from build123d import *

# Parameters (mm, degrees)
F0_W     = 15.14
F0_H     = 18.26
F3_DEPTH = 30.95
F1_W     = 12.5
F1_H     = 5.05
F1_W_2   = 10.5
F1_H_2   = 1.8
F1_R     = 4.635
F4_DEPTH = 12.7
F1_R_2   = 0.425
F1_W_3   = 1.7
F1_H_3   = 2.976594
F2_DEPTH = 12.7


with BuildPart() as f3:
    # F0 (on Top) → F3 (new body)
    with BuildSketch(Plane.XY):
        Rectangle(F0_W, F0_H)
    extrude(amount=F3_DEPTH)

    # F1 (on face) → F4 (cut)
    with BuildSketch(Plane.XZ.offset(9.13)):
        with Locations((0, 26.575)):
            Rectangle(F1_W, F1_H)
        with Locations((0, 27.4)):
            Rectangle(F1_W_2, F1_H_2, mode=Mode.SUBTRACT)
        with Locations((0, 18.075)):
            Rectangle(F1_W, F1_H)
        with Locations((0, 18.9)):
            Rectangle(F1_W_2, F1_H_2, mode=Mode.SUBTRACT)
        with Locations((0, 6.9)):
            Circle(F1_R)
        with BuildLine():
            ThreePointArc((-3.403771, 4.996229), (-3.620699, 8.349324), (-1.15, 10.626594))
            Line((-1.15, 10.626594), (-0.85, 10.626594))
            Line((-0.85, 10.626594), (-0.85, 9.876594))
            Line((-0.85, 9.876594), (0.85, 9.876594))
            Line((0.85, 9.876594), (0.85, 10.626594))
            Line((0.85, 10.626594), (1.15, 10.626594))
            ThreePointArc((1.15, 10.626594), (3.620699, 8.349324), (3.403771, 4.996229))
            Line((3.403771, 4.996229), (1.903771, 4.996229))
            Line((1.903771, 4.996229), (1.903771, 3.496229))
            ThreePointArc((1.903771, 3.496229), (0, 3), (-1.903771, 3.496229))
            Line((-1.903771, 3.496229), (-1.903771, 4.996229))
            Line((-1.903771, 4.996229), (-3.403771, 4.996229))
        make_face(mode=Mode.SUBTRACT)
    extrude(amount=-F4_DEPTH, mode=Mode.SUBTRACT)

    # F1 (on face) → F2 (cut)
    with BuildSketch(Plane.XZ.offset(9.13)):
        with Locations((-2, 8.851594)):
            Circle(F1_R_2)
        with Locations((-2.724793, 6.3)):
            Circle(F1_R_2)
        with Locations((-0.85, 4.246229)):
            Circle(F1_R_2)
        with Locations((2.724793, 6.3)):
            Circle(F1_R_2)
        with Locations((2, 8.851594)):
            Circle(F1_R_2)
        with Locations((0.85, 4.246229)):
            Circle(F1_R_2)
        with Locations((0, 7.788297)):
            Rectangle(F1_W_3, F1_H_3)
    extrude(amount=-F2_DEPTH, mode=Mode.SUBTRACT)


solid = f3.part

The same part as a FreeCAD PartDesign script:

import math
import FreeCAD as App
import Part
import Sketcher
from FreeCAD import Vector
Q = App.Units.Quantity


def add_polygon(sketch, points):
    """Adds a closed chain of lines whose ends are joined by coincident constraints."""
    first, n = sketch.GeometryCount, len(points)
    for a, b in zip(points, points[1:] + points[:1]):
        sketch.addGeometry(Part.LineSegment(App.Vector(*a, 0), App.Vector(*b, 0)), False)
    for i in range(n):
        sketch.addConstraint(Sketcher.Constraint("Coincident", first + i, 2, first + (i + 1) % n, 1))

doc = App.newDocument("Part")
body = doc.addObject("PartDesign::Body", "Body")

# Sketch on XY plane
sketch1 = doc.addObject("Sketcher::SketchObject", "Sketch")
body.addObject(sketch1)
sketch1.AttachmentSupport = (doc.XY_Plane, [""])
sketch1.MapMode = "FlatFace"
add_polygon(sketch1, [(-7.57, 9.13), (-7.57, -9.13), (7.57, -9.13), (7.57, 9.13)])  # lines 0-3
sketch1.addConstraint(Sketcher.Constraint("Vertical", 0))
sketch1.addConstraint(Sketcher.Constraint("Horizontal", 1))
sketch1.addConstraint(Sketcher.Constraint("Vertical", 2))
sketch1.addConstraint(Sketcher.Constraint("Horizontal", 3))
sketch1.addConstraint(Sketcher.Constraint("Symmetric", 0, 2, 2, 2, -1, 1))
sketch1.addConstraint(Sketcher.Constraint("DistanceX", 1, 1, 1, 2, Q("15.14 mm")))
sketch1.addConstraint(Sketcher.Constraint("DistanceY", 0, 2, 0, 1, Q("18.26 mm")))
pad1 = doc.addObject("PartDesign::Pad", "Pad")
body.addObject(pad1)
pad1.Profile = sketch1
pad1.Length = 30.95

# Sketch on XZ plane
sketch2 = doc.addObject("Sketcher::SketchObject", "Sketch001")
body.addObject(sketch2)
sketch2.AttachmentSupport = (doc.XZ_Plane, [""])
sketch2.MapMode = "FlatFace"
sketch2.AttachmentOffset = App.Placement(Vector(0, 0, 9.13), App.Rotation())
add_polygon(sketch2, [(-6.25, 29.1), (-6.25, 24.05), (6.25, 24.05), (6.25, 29.1)])  # lines 0-3
add_polygon(sketch2, [(5.25, 26.5), (-5.25, 26.5), (-5.25, 28.3), (5.25, 28.3)])  # lines 4-7
add_polygon(sketch2, [(-6.25, 20.6), (-6.25, 15.55), (6.25, 15.55), (6.25, 20.6)])  # lines 8-11
add_polygon(sketch2, [(5.25, 18), (-5.25, 18), (-5.25, 19.8), (5.25, 19.8)])  # lines 12-15
sketch2.addGeometry(Part.Circle(Vector(0, 6.9, 0), Vector(0, 0, 1), 4.635), False)  # 16
sketch2.addGeometry(Part.LineSegment(Vector(-1.903771, 4.996229, 0), Vector(-3.403771, 4.996229, 0)), False)  # 17
sketch2.addGeometry(Part.ArcOfCircle(Part.Circle(Vector(0, 6.9, 0), Vector(0, 0, 1), 3.9), math.radians(107.149852), math.radians(209.218821)), False)  # 18
sketch2.addGeometry(Part.LineSegment(Vector(-1.15, 10.626594, 0), Vector(-0.85, 10.626594, 0)), False)  # 19
sketch2.addGeometry(Part.LineSegment(Vector(-0.85, 10.626594, 0), Vector(-0.85, 9.876594, 0)), False)  # 20
sketch2.addGeometry(Part.LineSegment(Vector(-0.85, 9.876594, 0), Vector(0.85, 9.876594, 0)), False)  # 21
sketch2.addGeometry(Part.LineSegment(Vector(0.85, 9.876594, 0), Vector(0.85, 10.626594, 0)), False)  # 22
sketch2.addGeometry(Part.LineSegment(Vector(0.85, 10.626594, 0), Vector(1.15, 10.626594, 0)), False)  # 23
sketch2.addGeometry(Part.ArcOfCircle(Part.Circle(Vector(0, 6.9, 0), Vector(0, 0, 1), 3.9), math.radians(-29.218821), math.radians(72.850148)), False)  # 24
sketch2.addGeometry(Part.LineSegment(Vector(3.403771, 4.996229, 0), Vector(1.903771, 4.996229, 0)), False)  # 25
sketch2.addGeometry(Part.LineSegment(Vector(1.903771, 4.996229, 0), Vector(1.903771, 3.496229, 0)), False)  # 26
sketch2.addGeometry(Part.ArcOfCircle(Part.Circle(Vector(0, 6.900001, 0), Vector(0, 0, 1), 3.900001), math.radians(-119.218815), math.radians(-60.781185)), False)  # 27
sketch2.addGeometry(Part.LineSegment(Vector(-1.903771, 3.496229, 0), Vector(-1.903771, 4.996229, 0)), False)  # 28
sketch2.addConstraint(Sketcher.Constraint("Coincident", 17, 2, 18, 2))
sketch2.addConstraint(Sketcher.Constraint("Coincident", 18, 1, 19, 1))
sketch2.addConstraint(Sketcher.Constraint("Coincident", 19, 2, 20, 1))
sketch2.addConstraint(Sketcher.Constraint("Coincident", 20, 2, 21, 1))
sketch2.addConstraint(Sketcher.Constraint("Coincident", 21, 2, 22, 1))
sketch2.addConstraint(Sketcher.Constraint("Coincident", 22, 2, 23, 1))
sketch2.addConstraint(Sketcher.Constraint("Coincident", 23, 2, 24, 2))
sketch2.addConstraint(Sketcher.Constraint("Coincident", 24, 1, 25, 1))
sketch2.addConstraint(Sketcher.Constraint("Coincident", 25, 2, 26, 1))
sketch2.addConstraint(Sketcher.Constraint("Coincident", 26, 2, 27, 2))
sketch2.addConstraint(Sketcher.Constraint("Coincident", 27, 1, 28, 1))
sketch2.addConstraint(Sketcher.Constraint("Coincident", 28, 2, 17, 1))
sketch2.addConstraint(Sketcher.Constraint("Vertical", 0))
sketch2.addConstraint(Sketcher.Constraint("Horizontal", 1))
sketch2.addConstraint(Sketcher.Constraint("Vertical", 2))
sketch2.addConstraint(Sketcher.Constraint("Horizontal", 3))
sketch2.addConstraint(Sketcher.Constraint("Horizontal", 4))
sketch2.addConstraint(Sketcher.Constraint("Vertical", 5))
sketch2.addConstraint(Sketcher.Constraint("Horizontal", 6))
sketch2.addConstraint(Sketcher.Constraint("Vertical", 7))
sketch2.addConstraint(Sketcher.Constraint("Vertical", 8))
sketch2.addConstraint(Sketcher.Constraint("Horizontal", 9))
sketch2.addConstraint(Sketcher.Constraint("Vertical", 10))
sketch2.addConstraint(Sketcher.Constraint("Horizontal", 11))
sketch2.addConstraint(Sketcher.Constraint("Horizontal", 12))
sketch2.addConstraint(Sketcher.Constraint("Vertical", 13))
sketch2.addConstraint(Sketcher.Constraint("Horizontal", 14))
sketch2.addConstraint(Sketcher.Constraint("Vertical", 15))
sketch2.addConstraint(Sketcher.Constraint("Horizontal", 17))
sketch2.addConstraint(Sketcher.Constraint("Horizontal", 19))
sketch2.addConstraint(Sketcher.Constraint("Vertical", 20))
sketch2.addConstraint(Sketcher.Constraint("Horizontal", 21))
sketch2.addConstraint(Sketcher.Constraint("Vertical", 22))
sketch2.addConstraint(Sketcher.Constraint("Horizontal", 23))
sketch2.addConstraint(Sketcher.Constraint("Horizontal", 25))
sketch2.addConstraint(Sketcher.Constraint("Vertical", 26))
sketch2.addConstraint(Sketcher.Constraint("Vertical", 28))
sketch2.addConstraint(Sketcher.Constraint("Coincident", 18, 3, 16, 3))
sketch2.addConstraint(Sketcher.Constraint("Coincident", 24, 3, 16, 3))
sketch2.addConstraint(Sketcher.Constraint("Coincident", 27, 3, 16, 3))
sketch2.addConstraint(Sketcher.Constraint("Equal", 18, 24))
sketch2.addConstraint(Sketcher.Constraint("Equal", 24, 27))
sketch2.addConstraint(Sketcher.Constraint("Symmetric", 19, 2, 22, 2, -2))
sketch2.addConstraint(Sketcher.Constraint("Symmetric", 17, 2, 24, 1, -2))
sketch2.addConstraint(Sketcher.Constraint("Horizontal", 26, 2, 27, 1))
sketch2.addConstraint(Sketcher.Constraint("Vertical", 3, 2, 8, 2))
sketch2.addConstraint(Sketcher.Constraint("Vertical", 2, 2, 9, 2))
sketch2.addConstraint(Sketcher.Constraint("Vertical", 5, 2, 12, 2))
sketch2.addConstraint(Sketcher.Constraint("Vertical", 7, 2, 14, 2))
sketch2.addConstraint(Sketcher.Constraint("Equal", 2, 8))
sketch2.addConstraint(Sketcher.Constraint("Equal", 7, 13))
sketch2.addConstraint(Sketcher.Constraint("Equal", 25, 26))
sketch2.addConstraint(Sketcher.Constraint("Radius", 18, Q("3.9 mm")))
sketch2.addConstraint(Sketcher.Constraint("Diameter", 16, Q("9.27 mm")))
sketch2.addConstraint(Sketcher.Constraint("DistanceX", 1, 1, 1, 2, Q("12.5 mm")))
sketch2.addConstraint(Sketcher.Constraint("DistanceX", 4, 2, 4, 1, Q("10.5 mm")))
sketch2.addConstraint(Sketcher.Constraint("DistanceX", 17, 2, 17, 1, Q("1.5 mm")))
sketch2.addConstraint(Sketcher.Constraint("DistanceX", 19, 1, 19, 2, Q("0.3 mm")))
sketch2.addConstraint(Sketcher.Constraint("DistanceX", 21, 1, 21, 2, Q("1.7 mm")))
sketch2.addConstraint(Sketcher.Constraint("DistanceY", 5, 1, 5, 2, Q("1.8 mm")))
sketch2.addConstraint(Sketcher.Constraint("DistanceY", -1, 1, 12, 2, Q("18 mm")))
sketch2.addConstraint(Sketcher.Constraint("DistanceX", 0, 2, 4, 2, Q("1 mm")))
sketch2.addConstraint(Sketcher.Constraint("DistanceY", 0, 2, 0, 1, Q("5.05 mm")))
sketch2.addConstraint(Sketcher.Constraint("DistanceY", 20, 2, 20, 1, Q("0.75 mm")))
sketch2.addConstraint(Sketcher.Constraint("DistanceY", -1, 1, 16, 3, Q("6.9 mm")))
sketch2.addConstraint(Sketcher.Constraint("DistanceY", -1, 1, 2, 2, Q("29.1 mm")))
sketch2.addConstraint(Sketcher.Constraint("DistanceY", -1, 1, 4, 2, Q("26.5 mm")))
sketch2.addConstraint(Sketcher.Constraint("DistanceY", -1, 1, 10, 2, Q("20.6 mm")))
sketch2.addConstraint(Sketcher.Constraint("DistanceX", 0, 2, -1, 1, Q("6.25 mm")))
pocket1 = doc.addObject("PartDesign::Pocket", "Pocket")
body.addObject(pocket1)
pocket1.Profile = sketch2
pocket1.Length = 12.7

# Sketch on XZ plane
sketch3 = doc.addObject("Sketcher::SketchObject", "Sketch002")
body.addObject(sketch3)
sketch3.AttachmentSupport = (doc.XZ_Plane, [""])
sketch3.MapMode = "FlatFace"
sketch3.AttachmentOffset = App.Placement(Vector(0, 0, 9.13), App.Rotation())
sketch3.addGeometry(Part.Circle(Vector(-2, 8.851594, 0), Vector(0, 0, 1), 0.425), False)  # 0
sketch3.addGeometry(Part.Circle(Vector(-2.724793, 6.3, 0), Vector(0, 0, 1), 0.425), False)  # 1
sketch3.addGeometry(Part.Circle(Vector(-0.85, 4.246229, 0), Vector(0, 0, 1), 0.425), False)  # 2
sketch3.addGeometry(Part.Circle(Vector(2.724793, 6.3, 0), Vector(0, 0, 1), 0.425), False)  # 3
sketch3.addGeometry(Part.Circle(Vector(2, 8.851594, 0), Vector(0, 0, 1), 0.425), False)  # 4
sketch3.addGeometry(Part.Circle(Vector(0.85, 4.246229, 0), Vector(0, 0, 1), 0.425), False)  # 5
add_polygon(sketch3, [(-0.85, 9.276594), (-0.85, 6.3), (0.85, 6.3), (0.85, 9.276594)])  # lines 6-9
sketch3.addConstraint(Sketcher.Constraint("Vertical", 6))
sketch3.addConstraint(Sketcher.Constraint("Horizontal", 7))
sketch3.addConstraint(Sketcher.Constraint("Vertical", 8))
sketch3.addConstraint(Sketcher.Constraint("Horizontal", 9))
sketch3.addConstraint(Sketcher.Constraint("Equal", 0, 1))
sketch3.addConstraint(Sketcher.Constraint("Equal", 1, 2))
sketch3.addConstraint(Sketcher.Constraint("Equal", 2, 3))
sketch3.addConstraint(Sketcher.Constraint("Equal", 3, 4))
sketch3.addConstraint(Sketcher.Constraint("Equal", 4, 5))
sketch3.addConstraint(Sketcher.Constraint("Symmetric", 1, 3, 3, 3, -2))
sketch3.addConstraint(Sketcher.Constraint("Symmetric", 0, 3, 4, 3, -2))
sketch3.addConstraint(Sketcher.Constraint("Symmetric", 2, 3, 5, 3, -2))
sketch3.addConstraint(Sketcher.Constraint("Horizontal", 3, 3, 6, 2))
sketch3.addConstraint(Sketcher.Constraint("Vertical", 2, 3, 6, 2))
sketch3.addConstraint(Sketcher.Constraint("Vertical", 5, 3, 7, 2))
sketch3.addConstraint(Sketcher.Constraint("Diameter", 0, Q("0.85 mm")))
sketch3.addConstraint(Sketcher.Constraint("DistanceX", 7, 1, 7, 2, Q("1.7 mm")))
sketch3.addConstraint(Sketcher.Constraint("DistanceX", 0, 3, -1, 1, Q("2 mm")))
sketch3.addConstraint(Sketcher.Constraint("DistanceY", -1, 1, 1, 3, Q("6.3 mm")))
sketch3.addConstraint(Sketcher.Constraint("DistanceY", 4, 3, 8, 2, Q("0.425 mm")))
sketch3.addConstraint(Sketcher.Constraint("DistanceY", 6, 2, 6, 1, Q("2.976594 mm")))
sketch3.addConstraint(Sketcher.Constraint("DistanceY", -1, 1, 2, 3, Q("4.246229 mm")))
sketch3.addConstraint(Sketcher.Constraint("DistanceX", 1, 3, -1, 1, Q("2.724793 mm")))
pocket2 = doc.addObject("PartDesign::Pocket", "Pocket001")
body.addObject(pocket2)
pocket2.Profile = sketch3
pocket2.Length = 12.7

doc.recompute()
